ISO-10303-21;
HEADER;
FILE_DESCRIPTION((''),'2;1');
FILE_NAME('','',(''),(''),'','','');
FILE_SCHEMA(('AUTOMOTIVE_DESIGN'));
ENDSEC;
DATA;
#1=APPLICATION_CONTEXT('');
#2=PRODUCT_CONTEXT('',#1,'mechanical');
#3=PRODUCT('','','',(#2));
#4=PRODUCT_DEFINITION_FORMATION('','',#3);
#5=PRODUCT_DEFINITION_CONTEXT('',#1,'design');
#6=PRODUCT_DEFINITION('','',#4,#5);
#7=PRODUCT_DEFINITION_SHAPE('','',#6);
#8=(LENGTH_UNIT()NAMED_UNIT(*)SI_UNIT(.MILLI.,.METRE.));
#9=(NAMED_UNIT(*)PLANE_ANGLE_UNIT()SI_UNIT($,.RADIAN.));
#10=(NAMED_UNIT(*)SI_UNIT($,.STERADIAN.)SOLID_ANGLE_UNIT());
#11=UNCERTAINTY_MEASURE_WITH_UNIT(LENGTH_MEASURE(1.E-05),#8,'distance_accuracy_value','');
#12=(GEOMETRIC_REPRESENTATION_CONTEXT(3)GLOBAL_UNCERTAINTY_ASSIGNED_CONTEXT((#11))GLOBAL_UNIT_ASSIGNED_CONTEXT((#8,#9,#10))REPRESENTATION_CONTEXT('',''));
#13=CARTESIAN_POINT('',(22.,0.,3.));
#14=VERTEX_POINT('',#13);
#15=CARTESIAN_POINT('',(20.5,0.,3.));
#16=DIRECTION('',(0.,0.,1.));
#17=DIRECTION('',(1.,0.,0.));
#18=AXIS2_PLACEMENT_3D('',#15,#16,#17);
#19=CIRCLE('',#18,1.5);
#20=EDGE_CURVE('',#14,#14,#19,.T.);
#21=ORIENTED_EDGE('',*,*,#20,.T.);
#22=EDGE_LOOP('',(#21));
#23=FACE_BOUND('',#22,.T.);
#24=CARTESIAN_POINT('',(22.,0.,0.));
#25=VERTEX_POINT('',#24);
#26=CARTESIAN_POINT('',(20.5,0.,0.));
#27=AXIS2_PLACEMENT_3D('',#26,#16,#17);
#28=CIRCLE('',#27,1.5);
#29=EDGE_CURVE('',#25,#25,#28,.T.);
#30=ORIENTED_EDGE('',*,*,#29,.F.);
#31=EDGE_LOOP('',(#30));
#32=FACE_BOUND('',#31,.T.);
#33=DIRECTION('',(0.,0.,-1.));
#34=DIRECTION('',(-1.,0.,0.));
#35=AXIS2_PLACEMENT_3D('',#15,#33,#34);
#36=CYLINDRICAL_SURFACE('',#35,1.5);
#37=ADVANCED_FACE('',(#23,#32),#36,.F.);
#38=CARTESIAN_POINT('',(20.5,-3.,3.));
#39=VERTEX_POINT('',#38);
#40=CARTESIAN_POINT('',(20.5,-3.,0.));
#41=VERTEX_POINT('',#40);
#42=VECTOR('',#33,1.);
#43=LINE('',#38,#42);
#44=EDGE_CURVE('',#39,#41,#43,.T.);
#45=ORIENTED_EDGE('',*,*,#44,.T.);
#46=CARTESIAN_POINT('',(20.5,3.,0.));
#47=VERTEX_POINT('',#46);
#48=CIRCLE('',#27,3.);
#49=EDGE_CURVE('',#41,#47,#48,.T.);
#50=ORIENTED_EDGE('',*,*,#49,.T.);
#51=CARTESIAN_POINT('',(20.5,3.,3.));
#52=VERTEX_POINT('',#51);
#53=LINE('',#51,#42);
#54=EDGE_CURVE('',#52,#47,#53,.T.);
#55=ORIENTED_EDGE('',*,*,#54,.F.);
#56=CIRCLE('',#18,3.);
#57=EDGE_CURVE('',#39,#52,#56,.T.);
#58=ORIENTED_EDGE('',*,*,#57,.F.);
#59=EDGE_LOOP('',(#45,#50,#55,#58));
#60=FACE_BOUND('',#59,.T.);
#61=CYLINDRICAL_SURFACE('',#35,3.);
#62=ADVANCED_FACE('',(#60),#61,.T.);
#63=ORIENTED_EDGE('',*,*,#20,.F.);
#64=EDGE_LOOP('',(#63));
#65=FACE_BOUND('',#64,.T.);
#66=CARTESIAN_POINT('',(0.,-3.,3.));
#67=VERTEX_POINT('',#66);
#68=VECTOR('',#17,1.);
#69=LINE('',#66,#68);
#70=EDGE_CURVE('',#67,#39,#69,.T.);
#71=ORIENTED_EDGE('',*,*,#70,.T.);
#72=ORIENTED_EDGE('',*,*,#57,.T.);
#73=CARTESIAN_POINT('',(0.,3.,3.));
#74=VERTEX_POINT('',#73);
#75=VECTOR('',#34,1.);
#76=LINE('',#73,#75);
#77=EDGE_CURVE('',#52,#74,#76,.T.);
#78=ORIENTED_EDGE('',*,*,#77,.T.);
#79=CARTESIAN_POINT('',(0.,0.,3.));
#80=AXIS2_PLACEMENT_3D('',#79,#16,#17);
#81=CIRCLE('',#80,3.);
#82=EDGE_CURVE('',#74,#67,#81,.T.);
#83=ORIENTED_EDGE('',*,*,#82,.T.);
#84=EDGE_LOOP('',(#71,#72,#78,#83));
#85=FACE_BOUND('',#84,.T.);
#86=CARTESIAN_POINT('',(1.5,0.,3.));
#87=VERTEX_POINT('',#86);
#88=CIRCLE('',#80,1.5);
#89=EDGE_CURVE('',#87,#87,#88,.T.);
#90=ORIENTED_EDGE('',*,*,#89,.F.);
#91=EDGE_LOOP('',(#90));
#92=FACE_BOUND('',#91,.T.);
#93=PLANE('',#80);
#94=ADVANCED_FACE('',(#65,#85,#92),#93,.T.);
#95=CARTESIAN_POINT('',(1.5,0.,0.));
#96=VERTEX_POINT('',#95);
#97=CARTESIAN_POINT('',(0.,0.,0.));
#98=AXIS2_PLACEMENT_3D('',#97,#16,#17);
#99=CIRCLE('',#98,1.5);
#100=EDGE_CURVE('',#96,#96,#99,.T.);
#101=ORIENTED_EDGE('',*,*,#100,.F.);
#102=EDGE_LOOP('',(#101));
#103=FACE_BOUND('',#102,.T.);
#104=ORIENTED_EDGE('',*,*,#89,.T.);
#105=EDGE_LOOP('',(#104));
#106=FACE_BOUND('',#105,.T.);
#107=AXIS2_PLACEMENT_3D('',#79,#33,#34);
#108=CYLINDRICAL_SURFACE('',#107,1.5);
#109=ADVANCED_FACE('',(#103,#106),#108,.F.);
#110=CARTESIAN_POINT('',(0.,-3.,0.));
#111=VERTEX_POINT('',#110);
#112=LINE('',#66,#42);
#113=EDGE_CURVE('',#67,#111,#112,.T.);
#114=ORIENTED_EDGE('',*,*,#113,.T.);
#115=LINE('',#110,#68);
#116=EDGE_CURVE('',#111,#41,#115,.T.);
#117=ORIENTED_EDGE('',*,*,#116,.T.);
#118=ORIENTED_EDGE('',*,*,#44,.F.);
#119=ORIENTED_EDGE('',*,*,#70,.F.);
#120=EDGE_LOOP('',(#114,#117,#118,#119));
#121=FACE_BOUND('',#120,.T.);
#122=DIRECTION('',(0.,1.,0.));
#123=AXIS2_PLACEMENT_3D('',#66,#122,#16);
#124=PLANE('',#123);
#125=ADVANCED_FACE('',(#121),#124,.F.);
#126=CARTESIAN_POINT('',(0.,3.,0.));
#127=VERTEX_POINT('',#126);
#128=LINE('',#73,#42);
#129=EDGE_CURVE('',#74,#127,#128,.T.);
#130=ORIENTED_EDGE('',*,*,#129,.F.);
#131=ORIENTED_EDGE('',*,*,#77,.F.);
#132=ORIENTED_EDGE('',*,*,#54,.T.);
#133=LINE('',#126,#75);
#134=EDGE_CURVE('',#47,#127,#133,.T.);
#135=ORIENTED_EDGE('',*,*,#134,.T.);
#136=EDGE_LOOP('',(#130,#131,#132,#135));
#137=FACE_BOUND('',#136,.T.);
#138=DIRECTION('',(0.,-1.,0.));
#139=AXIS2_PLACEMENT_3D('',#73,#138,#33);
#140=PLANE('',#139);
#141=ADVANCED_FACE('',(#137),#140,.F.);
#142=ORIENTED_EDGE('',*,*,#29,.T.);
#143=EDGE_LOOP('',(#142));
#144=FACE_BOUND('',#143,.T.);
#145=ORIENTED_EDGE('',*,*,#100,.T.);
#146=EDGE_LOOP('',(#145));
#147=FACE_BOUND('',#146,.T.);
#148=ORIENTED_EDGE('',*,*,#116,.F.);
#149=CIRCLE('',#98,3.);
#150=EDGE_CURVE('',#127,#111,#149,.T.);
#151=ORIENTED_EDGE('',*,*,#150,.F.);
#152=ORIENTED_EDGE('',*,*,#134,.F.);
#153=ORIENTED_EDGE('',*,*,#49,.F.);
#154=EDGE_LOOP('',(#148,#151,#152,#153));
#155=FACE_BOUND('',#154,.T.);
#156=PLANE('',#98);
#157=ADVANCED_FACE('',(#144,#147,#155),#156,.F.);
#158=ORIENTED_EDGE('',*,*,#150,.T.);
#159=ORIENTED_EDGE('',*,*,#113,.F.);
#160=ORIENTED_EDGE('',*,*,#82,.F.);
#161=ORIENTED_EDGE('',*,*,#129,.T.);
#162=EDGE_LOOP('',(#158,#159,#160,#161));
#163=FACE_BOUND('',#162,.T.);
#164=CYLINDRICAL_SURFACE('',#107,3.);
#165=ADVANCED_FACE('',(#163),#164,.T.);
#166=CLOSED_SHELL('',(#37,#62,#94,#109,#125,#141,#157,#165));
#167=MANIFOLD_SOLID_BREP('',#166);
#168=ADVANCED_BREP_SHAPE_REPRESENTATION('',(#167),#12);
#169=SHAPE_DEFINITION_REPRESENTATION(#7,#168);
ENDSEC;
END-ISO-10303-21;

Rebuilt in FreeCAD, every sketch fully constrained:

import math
import FreeCAD as App
import Part
import Sketcher
from FreeCAD import Vector

doc = App.newDocument("Part")
body = doc.addObject("PartDesign::Body", "Body")

# Sketch on XY plane
sketch1 = body.newObject("Sketcher::SketchObject", "Sketch")
sketch1.AttachmentSupport = (doc.getObject("XY_Plane"), [""])
sketch1.MapMode = "FlatFace"
sketch1.addGeometry([
    Part.LineSegment(Vector(20.5, 3, 0), Vector(0, 3, 0)),  # 0
    Part.ArcOfCircle(Part.Circle(Vector(0, 0, 0), Vector(0, 0, 1), 3), math.radians(90), math.radians(270)),  # 1
    Part.LineSegment(Vector(0, -3, 0), Vector(20.5, -3, 0)),  # 2
    Part.ArcOfCircle(Part.Circle(Vector(20.5, 0, 0), Vector(0, 0, 1), 3), math.radians(-90), math.radians(90)),  # 3
    Part.Circle(Vector(20.5, 0, 0), Vector(0, 0, 1), 1.5),  # 4
    Part.Circle(Vector(0, 0, 0), Vector(0, 0, 1), 1.5),  # 5
], False)
sketch1.addConstraint([
    Sketcher.Constraint("Tangent", 0, 2, 1, 1),
    Sketcher.Constraint("Tangent", 1, 2, 2, 1),
    Sketcher.Constraint("Tangent", 2, 2, 3, 1),
    Sketcher.Constraint("Tangent", 3, 2, 0, 1),
    Sketcher.Constraint("Horizontal", 0),
    Sketcher.Constraint("Horizontal", 2),
    Sketcher.Constraint("Coincident", 1, 3, -1, 1),
    Sketcher.Constraint("Coincident", 5, 3, -1, 1),
    Sketcher.Constraint("Coincident", 4, 3, 3, 3),
    Sketcher.Constraint("Equal", 4, 5),
    Sketcher.Constraint("Diameter", 4, 3.0),
    Sketcher.Constraint("Radius", 1, 3.0),
    Sketcher.Constraint("DistanceX", 0, 2, 0, 1, 20.5),
])
pad1 = body.newObject("PartDesign::Pad", "Pad")
pad1.Profile = sketch1
pad1.Length = 3

doc.recompute()
